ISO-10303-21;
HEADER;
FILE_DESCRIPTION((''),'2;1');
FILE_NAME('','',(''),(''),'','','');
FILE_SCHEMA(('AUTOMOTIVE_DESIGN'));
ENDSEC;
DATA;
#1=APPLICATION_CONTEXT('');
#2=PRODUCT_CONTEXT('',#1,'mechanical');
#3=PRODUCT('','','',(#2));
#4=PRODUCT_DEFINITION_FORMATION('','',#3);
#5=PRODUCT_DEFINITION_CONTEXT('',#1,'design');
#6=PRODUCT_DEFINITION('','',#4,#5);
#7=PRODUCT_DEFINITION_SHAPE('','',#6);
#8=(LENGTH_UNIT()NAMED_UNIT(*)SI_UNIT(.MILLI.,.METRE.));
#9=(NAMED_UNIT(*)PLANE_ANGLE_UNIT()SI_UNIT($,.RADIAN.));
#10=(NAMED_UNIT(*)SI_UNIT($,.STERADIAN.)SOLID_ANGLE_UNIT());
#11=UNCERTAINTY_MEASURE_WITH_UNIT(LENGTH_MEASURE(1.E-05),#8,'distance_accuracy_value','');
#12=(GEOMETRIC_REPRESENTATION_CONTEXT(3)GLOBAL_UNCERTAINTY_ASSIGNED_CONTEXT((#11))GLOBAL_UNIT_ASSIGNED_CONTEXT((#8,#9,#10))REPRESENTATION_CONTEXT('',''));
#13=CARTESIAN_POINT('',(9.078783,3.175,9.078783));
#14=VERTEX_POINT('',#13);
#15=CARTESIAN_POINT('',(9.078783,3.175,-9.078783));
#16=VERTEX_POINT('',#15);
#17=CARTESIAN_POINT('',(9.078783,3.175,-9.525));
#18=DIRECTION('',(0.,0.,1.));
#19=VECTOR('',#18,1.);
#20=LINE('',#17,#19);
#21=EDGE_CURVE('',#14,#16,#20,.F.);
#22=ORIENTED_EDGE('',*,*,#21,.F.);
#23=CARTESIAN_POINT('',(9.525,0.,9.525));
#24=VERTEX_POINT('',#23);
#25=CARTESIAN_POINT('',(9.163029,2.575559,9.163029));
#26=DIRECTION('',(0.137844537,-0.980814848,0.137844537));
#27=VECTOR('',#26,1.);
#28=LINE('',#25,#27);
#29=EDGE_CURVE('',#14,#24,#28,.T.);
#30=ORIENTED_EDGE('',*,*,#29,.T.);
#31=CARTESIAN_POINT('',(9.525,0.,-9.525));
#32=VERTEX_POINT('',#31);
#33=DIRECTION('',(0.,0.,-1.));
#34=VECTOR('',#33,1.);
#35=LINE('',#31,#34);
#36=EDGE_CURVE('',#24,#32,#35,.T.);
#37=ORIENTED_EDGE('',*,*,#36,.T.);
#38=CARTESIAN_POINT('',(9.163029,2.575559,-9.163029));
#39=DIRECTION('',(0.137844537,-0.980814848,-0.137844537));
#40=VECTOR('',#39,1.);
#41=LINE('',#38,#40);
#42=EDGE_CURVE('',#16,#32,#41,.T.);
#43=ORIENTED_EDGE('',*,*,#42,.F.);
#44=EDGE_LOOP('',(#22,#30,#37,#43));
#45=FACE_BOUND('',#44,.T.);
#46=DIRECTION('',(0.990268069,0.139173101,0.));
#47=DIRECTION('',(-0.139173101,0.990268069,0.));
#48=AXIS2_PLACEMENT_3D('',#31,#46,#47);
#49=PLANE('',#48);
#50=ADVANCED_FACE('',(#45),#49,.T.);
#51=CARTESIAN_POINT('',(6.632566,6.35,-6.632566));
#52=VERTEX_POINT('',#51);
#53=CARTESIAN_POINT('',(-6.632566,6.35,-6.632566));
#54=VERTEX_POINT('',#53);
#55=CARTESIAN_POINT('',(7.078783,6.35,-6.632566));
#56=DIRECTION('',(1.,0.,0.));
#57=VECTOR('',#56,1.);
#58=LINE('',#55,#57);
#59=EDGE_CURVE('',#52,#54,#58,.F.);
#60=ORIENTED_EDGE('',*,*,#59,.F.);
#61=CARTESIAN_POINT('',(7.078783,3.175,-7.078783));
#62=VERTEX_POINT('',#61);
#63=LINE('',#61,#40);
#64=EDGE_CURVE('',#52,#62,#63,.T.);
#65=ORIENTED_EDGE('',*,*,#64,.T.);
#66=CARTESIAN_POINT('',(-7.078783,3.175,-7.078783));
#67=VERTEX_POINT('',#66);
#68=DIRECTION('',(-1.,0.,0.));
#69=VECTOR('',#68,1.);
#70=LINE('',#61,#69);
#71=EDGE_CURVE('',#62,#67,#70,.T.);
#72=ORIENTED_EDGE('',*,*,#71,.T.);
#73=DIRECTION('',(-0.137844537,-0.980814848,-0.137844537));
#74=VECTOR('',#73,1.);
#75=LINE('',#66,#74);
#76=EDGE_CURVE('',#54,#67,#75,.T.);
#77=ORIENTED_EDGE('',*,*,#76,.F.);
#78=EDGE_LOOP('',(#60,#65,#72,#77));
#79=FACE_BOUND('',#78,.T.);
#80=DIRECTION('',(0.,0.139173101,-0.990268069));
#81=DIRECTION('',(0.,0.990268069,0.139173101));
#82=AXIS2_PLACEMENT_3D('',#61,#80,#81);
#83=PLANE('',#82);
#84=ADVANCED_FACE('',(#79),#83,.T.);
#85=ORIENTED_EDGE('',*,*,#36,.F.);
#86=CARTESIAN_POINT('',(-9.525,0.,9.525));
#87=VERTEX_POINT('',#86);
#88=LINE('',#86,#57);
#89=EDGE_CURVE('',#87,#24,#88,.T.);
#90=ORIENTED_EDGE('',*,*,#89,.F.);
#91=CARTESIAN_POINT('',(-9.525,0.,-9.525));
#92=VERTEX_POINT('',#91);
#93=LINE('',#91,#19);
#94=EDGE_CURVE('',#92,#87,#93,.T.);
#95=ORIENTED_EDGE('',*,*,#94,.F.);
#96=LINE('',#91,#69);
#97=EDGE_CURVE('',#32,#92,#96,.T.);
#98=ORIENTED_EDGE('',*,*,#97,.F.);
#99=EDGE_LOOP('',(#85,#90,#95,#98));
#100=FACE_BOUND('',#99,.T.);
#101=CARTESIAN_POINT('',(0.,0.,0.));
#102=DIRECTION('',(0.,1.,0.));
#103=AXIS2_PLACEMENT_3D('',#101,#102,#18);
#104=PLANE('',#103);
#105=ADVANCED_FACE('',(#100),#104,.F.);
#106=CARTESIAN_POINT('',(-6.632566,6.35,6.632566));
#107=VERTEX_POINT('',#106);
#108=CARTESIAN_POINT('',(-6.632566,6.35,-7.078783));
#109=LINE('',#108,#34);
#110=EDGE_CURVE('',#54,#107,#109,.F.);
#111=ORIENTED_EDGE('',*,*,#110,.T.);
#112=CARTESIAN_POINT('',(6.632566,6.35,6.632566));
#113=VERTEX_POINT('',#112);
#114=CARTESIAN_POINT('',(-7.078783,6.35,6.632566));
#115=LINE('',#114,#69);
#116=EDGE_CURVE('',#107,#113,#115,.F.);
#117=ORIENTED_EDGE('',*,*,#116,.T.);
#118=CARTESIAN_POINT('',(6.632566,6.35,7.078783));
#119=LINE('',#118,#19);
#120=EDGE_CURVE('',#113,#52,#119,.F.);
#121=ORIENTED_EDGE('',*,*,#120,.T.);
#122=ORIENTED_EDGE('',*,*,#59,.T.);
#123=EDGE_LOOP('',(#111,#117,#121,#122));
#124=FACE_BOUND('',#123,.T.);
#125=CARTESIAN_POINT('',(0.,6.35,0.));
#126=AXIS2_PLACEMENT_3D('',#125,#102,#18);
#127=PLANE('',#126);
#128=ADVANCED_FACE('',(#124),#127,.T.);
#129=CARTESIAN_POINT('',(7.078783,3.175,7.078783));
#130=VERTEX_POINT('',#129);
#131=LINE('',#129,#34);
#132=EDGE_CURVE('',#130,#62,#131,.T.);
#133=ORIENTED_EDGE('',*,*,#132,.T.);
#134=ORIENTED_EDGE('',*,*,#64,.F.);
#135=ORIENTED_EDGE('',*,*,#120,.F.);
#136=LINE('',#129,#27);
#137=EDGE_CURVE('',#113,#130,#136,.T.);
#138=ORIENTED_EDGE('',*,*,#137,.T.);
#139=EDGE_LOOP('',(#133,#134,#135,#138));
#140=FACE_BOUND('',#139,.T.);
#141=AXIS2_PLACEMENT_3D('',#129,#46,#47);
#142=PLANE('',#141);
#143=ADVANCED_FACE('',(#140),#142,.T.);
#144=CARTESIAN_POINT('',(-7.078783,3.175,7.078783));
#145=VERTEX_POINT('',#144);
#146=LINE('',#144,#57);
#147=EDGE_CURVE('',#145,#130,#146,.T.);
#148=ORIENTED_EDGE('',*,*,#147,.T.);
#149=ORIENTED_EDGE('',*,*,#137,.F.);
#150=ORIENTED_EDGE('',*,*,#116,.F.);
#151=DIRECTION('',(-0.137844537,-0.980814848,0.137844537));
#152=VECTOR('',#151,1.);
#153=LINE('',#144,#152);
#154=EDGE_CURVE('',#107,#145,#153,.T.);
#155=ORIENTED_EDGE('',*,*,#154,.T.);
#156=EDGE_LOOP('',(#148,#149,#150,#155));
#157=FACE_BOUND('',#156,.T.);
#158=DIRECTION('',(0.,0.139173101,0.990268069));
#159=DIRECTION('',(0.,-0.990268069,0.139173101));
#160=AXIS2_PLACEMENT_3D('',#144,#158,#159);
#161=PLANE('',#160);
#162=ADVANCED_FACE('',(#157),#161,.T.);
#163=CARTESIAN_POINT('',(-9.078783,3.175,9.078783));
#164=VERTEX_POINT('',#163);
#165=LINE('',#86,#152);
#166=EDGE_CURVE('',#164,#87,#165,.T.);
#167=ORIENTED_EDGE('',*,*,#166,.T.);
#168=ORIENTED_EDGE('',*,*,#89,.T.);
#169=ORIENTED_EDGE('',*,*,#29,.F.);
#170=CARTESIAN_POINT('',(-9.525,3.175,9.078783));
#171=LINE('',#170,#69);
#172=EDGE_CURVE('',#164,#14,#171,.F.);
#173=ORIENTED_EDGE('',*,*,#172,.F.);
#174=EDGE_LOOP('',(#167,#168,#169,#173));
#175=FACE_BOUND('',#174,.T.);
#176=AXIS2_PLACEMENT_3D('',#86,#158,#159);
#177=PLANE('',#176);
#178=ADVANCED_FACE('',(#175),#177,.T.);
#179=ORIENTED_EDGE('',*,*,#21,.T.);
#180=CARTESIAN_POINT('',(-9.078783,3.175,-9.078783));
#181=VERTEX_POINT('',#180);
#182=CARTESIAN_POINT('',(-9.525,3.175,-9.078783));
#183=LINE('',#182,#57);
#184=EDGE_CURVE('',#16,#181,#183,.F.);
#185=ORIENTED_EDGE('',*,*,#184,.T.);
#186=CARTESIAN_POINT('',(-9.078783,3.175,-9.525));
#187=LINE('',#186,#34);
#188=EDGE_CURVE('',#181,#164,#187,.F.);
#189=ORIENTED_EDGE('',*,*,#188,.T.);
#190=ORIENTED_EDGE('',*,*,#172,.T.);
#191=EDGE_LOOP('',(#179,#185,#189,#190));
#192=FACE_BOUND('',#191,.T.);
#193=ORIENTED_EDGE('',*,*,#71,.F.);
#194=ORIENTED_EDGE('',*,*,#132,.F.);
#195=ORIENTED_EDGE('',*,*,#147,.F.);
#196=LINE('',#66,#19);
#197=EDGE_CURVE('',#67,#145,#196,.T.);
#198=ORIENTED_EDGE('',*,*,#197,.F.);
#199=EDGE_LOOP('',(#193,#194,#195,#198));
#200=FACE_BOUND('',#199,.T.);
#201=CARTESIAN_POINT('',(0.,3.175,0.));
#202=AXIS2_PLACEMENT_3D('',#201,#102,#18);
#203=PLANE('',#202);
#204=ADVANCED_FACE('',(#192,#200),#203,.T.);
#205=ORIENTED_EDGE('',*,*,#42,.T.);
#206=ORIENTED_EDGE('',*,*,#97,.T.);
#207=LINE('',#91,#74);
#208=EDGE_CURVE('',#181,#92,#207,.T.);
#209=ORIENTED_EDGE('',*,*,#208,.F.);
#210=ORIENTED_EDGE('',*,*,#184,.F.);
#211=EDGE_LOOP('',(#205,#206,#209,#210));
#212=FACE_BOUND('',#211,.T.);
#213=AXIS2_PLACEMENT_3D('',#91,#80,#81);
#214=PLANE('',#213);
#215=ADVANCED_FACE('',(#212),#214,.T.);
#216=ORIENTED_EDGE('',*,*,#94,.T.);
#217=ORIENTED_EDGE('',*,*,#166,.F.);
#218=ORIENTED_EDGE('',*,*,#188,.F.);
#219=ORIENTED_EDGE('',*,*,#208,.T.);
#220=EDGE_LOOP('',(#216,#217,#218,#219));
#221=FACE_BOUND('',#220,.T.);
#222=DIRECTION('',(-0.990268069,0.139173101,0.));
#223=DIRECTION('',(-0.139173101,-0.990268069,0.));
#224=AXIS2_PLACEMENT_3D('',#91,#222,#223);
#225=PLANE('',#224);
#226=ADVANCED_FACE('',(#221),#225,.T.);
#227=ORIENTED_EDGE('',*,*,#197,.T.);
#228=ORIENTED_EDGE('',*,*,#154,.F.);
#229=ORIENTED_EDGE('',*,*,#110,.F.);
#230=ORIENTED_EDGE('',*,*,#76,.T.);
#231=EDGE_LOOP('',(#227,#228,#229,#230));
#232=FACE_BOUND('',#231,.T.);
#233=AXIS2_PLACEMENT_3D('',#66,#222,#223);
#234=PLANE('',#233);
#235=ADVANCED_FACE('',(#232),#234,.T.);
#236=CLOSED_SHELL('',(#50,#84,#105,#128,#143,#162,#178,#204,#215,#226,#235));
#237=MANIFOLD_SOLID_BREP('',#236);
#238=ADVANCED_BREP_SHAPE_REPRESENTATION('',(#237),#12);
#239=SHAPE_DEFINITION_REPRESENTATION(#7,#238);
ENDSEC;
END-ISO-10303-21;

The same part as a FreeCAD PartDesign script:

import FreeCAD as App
import Part
import Sketcher
from FreeCAD import Vector
Q = App.Units.Quantity


def add_polygon(sketch, points):
    """Adds a closed chain of lines whose ends are joined by coincident constraints."""
    first, n = sketch.GeometryCount, len(points)
    for a, b in zip(points, points[1:] + points[:1]):
        sketch.addGeometry(Part.LineSegment(App.Vector(*a, 0), App.Vector(*b, 0)), False)
    for i in range(n):
        sketch.addConstraint(Sketcher.Constraint("Coincident", first + i, 2, first + (i + 1) % n, 1))

doc = App.newDocument("Part")
body = doc.addObject("PartDesign::Body", "Body")

# Sketch on XZ plane
sketch1 = body.newObject("Sketcher::SketchObject", "Sketch")
sketch1.AttachmentSupport = (doc.getObject("XZ_Plane"), [""])
sketch1.MapMode = "FlatFace"
add_polygon(sketch1, [(-9.525, -9.525), (-9.525, 9.525), (9.525, 9.525), (9.525, -9.525)])  # lines 0-3
sketch1.addConstraint(Sketcher.Constraint("Vertical", 0))
sketch1.addConstraint(Sketcher.Constraint("Horizontal", 1))
sketch1.addConstraint(Sketcher.Constraint("Vertical", 2))
sketch1.addConstraint(Sketcher.Constraint("Horizontal", 3))
sketch1.addConstraint(Sketcher.Constraint("Symmetric", 0, 2, 2, 2, -1, 1))
sketch1.addConstraint(Sketcher.Constraint("Equal", 3, 0))
sketch1.addConstraint(Sketcher.Constraint("DistanceX", 1, 1, 1, 2, Q("0.75 in")))
pad1 = body.newObject("PartDesign::Pad", "Pad")
pad1.Profile = sketch1
pad1.Length = Q("0.125 in")
pad1.Reversed = True
pad1.TaperAngle = -8

# Sketch on XZ plane
sketch2 = body.newObject("Sketcher::SketchObject", "Sketch001")
sketch2.AttachmentSupport = (doc.getObject("XZ_Plane"), [""])
sketch2.MapMode = "FlatFace"
sketch2.AttachmentOffset = App.Placement(Vector(0, 0, -0.125 * 25.4), App.Rotation())
add_polygon(sketch2, [(-7.078783, -7.078783), (-7.078783, 7.078783), (7.078783, 7.078783), (7.078783, -7.078783)])  # lines 0-3
sketch2.addConstraint(Sketcher.Constraint("Vertical", 0))
sketch2.addConstraint(Sketcher.Constraint("Horizontal", 1))
sketch2.addConstraint(Sketcher.Constraint("Vertical", 2))
sketch2.addConstraint(Sketcher.Constraint("Horizontal", 3))
sketch2.addConstraint(Sketcher.Constraint("Symmetric", 0, 2, 2, 2, -1, 1))
sketch2.addConstraint(Sketcher.Constraint("Equal", 3, 0))
sketch2.addConstraint(Sketcher.Constraint("DistanceX", 1, 1, 1, 2, Q("14.157566 mm")))
pad2 = body.newObject("PartDesign::Pad", "Pad001")
pad2.Profile = sketch2
pad2.Length = Q("0.125 in")
pad2.Reversed = True
pad2.TaperAngle = -8

doc.recompute()
